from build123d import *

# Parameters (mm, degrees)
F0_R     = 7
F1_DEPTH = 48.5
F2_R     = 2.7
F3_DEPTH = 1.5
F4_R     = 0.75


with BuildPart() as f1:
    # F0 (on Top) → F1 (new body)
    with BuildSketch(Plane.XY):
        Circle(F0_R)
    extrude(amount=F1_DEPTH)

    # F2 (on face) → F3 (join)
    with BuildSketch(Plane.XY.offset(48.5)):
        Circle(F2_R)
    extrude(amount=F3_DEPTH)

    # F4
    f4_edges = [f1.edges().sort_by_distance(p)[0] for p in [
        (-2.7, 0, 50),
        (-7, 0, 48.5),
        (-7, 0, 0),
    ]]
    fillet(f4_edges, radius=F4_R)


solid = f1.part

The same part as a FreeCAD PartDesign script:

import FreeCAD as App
import Part
import Sketcher

V = App.Vector
Q = App.Units.Quantity


def edges_at(feature, points):
    """Names of the edges that pass closest to the given points."""
    edges = feature.Shape.Edges
    near = lambda p: min(range(len(edges)), key=lambda i: edges[i].distToShape(Part.Vertex(*p))[0])
    return sorted({f"Edge{near(p) + 1}" for p in points})

doc = App.newDocument("Part")
params = doc.addObject("Spreadsheet::Sheet", "Params")
for row, (alias, value) in enumerate([
    ("sketch1_diameter", "14 mm"),
    ("pad1_length", "48.5 mm"),
    ("sketch2_diameter", "5.4 mm"),
    ("pad2_length", "1.5 mm"),
    ("fillet_radius", "0.75 mm"),
], start=1):
    params.set(f"A{row}", alias)
    params.set(f"B{row}", "=" + value)
    params.setAlias(f"B{row}", alias)

body = doc.addObject("PartDesign::Body", "Body")

sketch1 = body.newObject("Sketcher::SketchObject", "Sketch")
sketch1.AttachmentSupport = (doc.getObject("XY_Plane"), [""])
sketch1.MapMode = "FlatFace"
sketch1.addGeometry(Part.Circle(V(0, 0, 0), V(0, 0, 1), 7), False)
sketch1.addConstraint([
    Sketcher.Constraint("Coincident", 0, 3, -1, 1),
    Sketcher.Constraint("Diameter", 0, Q("14 mm")),
])
sketch1.setExpression("Constraints[1]", "Params.sketch1_diameter")
pad1 = body.newObject("PartDesign::Pad", "Pad")
pad1.Profile = sketch1
pad1.setExpression("Length", "Params.pad1_length")

sketch2 = body.newObject("Sketcher::SketchObject", "Sketch001")
sketch2.AttachmentSupport = (doc.getObject("XY_Plane"), [""])
sketch2.MapMode = "FlatFace"
sketch2.AttachmentOffset = App.Placement(V(0, 0, 48.5), App.Rotation())
sketch2.addGeometry(Part.Circle(V(0, 0, 0), V(0, 0, 1), 2.7), False)
sketch2.addConstraint([
    Sketcher.Constraint("Coincident", 0, 3, -1, 1),
    Sketcher.Constraint("Diameter", 0, Q("5.4 mm")),
])
sketch2.setExpression("Constraints[1]", "Params.sketch2_diameter")
pad2 = body.newObject("PartDesign::Pad", "Pad001")
pad2.Profile = sketch2
pad2.setExpression("Length", "Params.pad2_length")
doc.recompute()

fillet = body.newObject("PartDesign::Fillet", "Fillet")
fillet.Base = (pad2, edges_at(pad2, [(-2.7, 0, 50), (-7, 0, 48.5), (-7, 0, 0)]))
fillet.setExpression("Radius", "Params.fillet_radius")

doc.recompute()
